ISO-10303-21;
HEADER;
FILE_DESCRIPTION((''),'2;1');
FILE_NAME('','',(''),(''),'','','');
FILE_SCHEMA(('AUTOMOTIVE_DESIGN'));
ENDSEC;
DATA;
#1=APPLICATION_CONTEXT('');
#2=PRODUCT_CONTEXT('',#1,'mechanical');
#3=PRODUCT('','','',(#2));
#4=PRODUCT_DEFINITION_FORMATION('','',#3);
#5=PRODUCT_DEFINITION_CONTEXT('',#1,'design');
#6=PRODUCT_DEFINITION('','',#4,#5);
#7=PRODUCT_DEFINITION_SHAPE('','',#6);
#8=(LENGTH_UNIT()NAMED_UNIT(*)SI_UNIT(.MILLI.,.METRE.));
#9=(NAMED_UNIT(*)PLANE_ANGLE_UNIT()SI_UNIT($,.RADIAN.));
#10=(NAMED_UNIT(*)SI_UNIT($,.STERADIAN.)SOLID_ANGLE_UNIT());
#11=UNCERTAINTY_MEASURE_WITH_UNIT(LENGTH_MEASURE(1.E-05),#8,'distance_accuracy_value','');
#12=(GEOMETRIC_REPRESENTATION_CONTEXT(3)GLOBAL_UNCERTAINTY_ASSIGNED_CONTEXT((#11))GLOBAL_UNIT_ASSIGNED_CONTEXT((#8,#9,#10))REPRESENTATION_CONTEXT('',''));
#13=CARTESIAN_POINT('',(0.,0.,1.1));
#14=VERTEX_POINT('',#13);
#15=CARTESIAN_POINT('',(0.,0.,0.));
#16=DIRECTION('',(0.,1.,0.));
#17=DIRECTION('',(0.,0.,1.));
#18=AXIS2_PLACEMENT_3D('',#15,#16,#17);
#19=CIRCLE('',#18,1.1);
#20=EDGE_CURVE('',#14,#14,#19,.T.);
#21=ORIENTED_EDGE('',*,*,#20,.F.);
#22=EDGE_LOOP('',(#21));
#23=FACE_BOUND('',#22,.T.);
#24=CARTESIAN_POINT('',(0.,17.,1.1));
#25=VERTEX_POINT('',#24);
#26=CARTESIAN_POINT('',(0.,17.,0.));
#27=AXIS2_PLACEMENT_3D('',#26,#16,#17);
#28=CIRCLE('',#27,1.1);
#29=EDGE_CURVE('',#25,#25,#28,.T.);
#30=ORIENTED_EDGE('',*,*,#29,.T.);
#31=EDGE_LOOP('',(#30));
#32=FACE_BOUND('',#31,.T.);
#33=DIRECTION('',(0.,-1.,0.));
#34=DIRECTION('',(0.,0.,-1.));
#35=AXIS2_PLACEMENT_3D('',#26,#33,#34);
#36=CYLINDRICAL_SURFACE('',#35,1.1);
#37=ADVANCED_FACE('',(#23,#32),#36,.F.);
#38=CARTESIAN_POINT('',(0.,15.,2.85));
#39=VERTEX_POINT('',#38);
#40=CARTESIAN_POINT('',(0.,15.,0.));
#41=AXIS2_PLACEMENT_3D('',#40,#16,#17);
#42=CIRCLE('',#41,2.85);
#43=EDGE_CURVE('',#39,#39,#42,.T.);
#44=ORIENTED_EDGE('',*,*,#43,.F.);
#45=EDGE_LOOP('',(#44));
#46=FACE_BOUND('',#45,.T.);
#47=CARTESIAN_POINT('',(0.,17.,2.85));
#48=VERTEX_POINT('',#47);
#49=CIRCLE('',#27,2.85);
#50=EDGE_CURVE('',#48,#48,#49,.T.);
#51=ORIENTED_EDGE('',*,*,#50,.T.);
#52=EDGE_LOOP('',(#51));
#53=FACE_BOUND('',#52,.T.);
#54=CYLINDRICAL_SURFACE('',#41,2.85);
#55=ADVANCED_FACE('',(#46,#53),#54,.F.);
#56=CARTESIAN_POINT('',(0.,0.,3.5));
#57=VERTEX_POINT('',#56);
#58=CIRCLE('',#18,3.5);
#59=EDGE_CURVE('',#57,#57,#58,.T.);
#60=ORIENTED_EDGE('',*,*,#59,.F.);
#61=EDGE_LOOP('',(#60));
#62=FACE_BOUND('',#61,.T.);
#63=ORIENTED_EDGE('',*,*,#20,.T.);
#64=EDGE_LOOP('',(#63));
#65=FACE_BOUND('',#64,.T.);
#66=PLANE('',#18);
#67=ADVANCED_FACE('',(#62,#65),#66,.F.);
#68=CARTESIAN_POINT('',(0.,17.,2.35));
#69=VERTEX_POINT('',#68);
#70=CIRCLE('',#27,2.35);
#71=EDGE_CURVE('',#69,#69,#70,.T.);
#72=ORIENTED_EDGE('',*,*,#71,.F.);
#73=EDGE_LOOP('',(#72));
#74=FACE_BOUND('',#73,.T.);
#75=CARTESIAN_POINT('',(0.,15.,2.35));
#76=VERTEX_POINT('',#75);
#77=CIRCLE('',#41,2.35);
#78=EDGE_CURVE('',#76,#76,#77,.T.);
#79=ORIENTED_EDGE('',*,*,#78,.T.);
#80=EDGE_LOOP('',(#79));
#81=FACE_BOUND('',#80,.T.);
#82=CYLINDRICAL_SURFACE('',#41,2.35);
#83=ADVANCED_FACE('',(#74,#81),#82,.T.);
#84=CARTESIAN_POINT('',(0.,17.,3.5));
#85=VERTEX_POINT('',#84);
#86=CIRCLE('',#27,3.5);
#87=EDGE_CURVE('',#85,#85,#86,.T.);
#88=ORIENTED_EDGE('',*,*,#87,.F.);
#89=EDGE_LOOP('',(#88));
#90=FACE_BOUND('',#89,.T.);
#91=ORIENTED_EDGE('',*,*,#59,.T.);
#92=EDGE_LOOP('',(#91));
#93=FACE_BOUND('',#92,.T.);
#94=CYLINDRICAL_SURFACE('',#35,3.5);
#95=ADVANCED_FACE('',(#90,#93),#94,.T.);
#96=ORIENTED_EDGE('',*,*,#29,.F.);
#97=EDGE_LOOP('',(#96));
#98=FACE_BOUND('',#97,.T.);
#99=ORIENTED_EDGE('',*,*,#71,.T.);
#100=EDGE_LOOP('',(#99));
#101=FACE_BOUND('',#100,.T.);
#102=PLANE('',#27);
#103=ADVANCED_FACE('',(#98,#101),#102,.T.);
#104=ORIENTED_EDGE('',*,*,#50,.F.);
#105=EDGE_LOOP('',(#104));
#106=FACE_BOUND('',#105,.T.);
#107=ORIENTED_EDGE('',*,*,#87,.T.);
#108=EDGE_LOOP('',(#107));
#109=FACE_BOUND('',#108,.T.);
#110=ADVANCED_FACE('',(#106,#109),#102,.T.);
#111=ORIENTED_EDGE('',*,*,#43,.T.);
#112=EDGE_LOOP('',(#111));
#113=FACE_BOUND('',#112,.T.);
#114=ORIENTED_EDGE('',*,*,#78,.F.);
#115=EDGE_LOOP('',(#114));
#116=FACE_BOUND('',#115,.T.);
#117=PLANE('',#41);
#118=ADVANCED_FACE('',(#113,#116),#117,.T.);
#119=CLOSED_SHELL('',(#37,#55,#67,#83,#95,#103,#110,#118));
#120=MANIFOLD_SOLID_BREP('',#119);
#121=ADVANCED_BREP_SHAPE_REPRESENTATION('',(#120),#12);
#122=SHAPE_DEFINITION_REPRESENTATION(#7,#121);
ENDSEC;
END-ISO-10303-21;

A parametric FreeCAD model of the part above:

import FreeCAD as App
import Part
import Sketcher

V = App.Vector
Q = App.Units.Quantity

doc = App.newDocument("Part")
body = doc.addObject("PartDesign::Body", "Body")

sketch1 = doc.addObject("Sketcher::SketchObject", "Sketch")
body.addObject(sketch1)
sketch1.AttachmentSupport = (doc.XZ_Plane, [""])
sketch1.MapMode = "FlatFace"
sketch1.addGeometry(Part.Circle(V(0, 0, 0), V(0, 0, 1), 3.5), False)
sketch1.addGeometry(Part.Circle(V(0, 0, 0), V(0, 0, 1), 1.1), False)
sketch1.addConstraint(Sketcher.Constraint("Coincident", 0, 3, -1, 1))
sketch1.addConstraint(Sketcher.Constraint("Coincident", 1, 3, -1, 1))
sketch1.addConstraint(Sketcher.Constraint("Diameter", 0, Q("7 mm")))
sketch1.addConstraint(Sketcher.Constraint("Diameter", 1, Q("2.2 mm")))
pad1 = doc.addObject("PartDesign::Pad", "Pad")
body.addObject(pad1)
pad1.Profile = sketch1
pad1.Length = 17
pad1.Reversed = True

sketch2 = doc.addObject("Sketcher::SketchObject", "Sketch001")
body.addObject(sketch2)
sketch2.AttachmentSupport = (doc.XZ_Plane, [""])
sketch2.MapMode = "FlatFace"
sketch2.AttachmentOffset = App.Placement(V(0, 0, -17), App.Rotation())
sketch2.addGeometry(Part.Circle(V(0, 0, 0), V(0, 0, 1), 2.9), False)
sketch2.addGeometry(Part.Circle(V(0, 0, 0), V(0, 0, 1), 2.4), False)
sketch2.addConstraint(Sketcher.Constraint("Coincident", 0, 3, -1, 1))
sketch2.addConstraint(Sketcher.Constraint("Coincident", 1, 3, -1, 1))
sketch2.addConstraint(Sketcher.Constraint("Diameter", 0, Q("5.7 mm")))
sketch2.addConstraint(Sketcher.Constraint("Diameter", 1, Q("4.7 mm")))
pocket1 = doc.addObject("PartDesign::Pocket", "Pocket")
body.addObject(pocket1)
pocket1.Profile = sketch2
pocket1.Length = 2
pocket1.Reversed = True

doc.recompute()
